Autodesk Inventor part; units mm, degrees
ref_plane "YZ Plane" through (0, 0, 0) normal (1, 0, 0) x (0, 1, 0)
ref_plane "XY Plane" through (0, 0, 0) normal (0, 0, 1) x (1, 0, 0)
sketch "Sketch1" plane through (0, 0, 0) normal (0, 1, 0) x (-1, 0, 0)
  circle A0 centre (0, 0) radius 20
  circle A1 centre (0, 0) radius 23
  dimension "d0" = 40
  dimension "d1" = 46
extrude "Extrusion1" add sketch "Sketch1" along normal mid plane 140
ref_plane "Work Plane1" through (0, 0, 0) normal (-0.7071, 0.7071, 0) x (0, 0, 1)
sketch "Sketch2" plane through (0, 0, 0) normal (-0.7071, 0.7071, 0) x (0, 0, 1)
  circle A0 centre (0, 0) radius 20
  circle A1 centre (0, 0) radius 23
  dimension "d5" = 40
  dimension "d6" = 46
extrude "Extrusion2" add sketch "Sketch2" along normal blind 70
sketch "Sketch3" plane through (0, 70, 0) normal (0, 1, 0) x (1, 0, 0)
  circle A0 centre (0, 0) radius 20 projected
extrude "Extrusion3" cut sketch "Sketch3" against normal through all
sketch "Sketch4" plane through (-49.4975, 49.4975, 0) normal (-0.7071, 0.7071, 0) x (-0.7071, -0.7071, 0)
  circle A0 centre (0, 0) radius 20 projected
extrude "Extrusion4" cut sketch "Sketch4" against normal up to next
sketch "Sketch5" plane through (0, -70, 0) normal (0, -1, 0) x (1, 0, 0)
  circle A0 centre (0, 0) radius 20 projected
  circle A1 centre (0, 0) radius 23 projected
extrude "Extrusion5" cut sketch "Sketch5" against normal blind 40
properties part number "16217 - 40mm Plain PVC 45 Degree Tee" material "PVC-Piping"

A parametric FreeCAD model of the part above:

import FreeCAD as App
import Part
import Sketcher
from FreeCAD import Vector

doc = App.newDocument("Part")
body = doc.addObject("PartDesign::Body", "Body")

sketch1 = body.newObject("Sketcher::SketchObject", "Sketch")
sketch1.AttachmentSupport = (doc.getObject("XZ_Plane"), [""])
sketch1.MapMode = "FlatFace"
sketch1.addGeometry([
    Part.Circle(Vector(0, 0, 0), Vector(0, 0, 1), 23),
    Part.Circle(Vector(0, 0, 0), Vector(0, 0, 1), 20),
], False)
sketch1.addConstraint([
    Sketcher.Constraint("Coincident", 0, 3, -1, 1),
    Sketcher.Constraint("Coincident", 1, 3, -1, 1),
    Sketcher.Constraint("Diameter", 0, 46.0),
    Sketcher.Constraint("Diameter", 1, 40.0),
])
pad1 = body.newObject("PartDesign::Pad", "Pad")
pad1.Profile = sketch1
pad1.Length = 140
pad1.Midplane = True

sketch2 = body.newObject("Sketcher::SketchObject", "Sketch001")
sketch2.Placement = App.Placement(Vector(0, 0, 0), App.Rotation(Vector(0, 0, 1), Vector(0.707106781, 0.707106781, 0), Vector(-0.707106781, 0.707106781, 0), "ZXY"))
sketch2.addGeometry([
    Part.Circle(Vector(0, 0, 0), Vector(0, 0, 1), 23),
    Part.Circle(Vector(0, 0, 0), Vector(0, 0, 1), 20),
], False)
sketch2.addConstraint([
    Sketcher.Constraint("Coincident", 0, 3, -1, 1),
    Sketcher.Constraint("Coincident", 1, 3, -1, 1),
    Sketcher.Constraint("Diameter", 0, 46.0),
    Sketcher.Constraint("Diameter", 1, 40.0),
])
pad2 = body.newObject("PartDesign::Pad", "Pad001")
pad2.Profile = sketch2
pad2.Length = 70

sketch3 = body.newObject("Sketcher::SketchObject", "Sketch002")
sketch3.AttachmentSupport = (doc.getObject("XZ_Plane"), [""])
sketch3.MapMode = "FlatFace"
sketch3.AttachmentOffset = App.Placement(Vector(0, 0, -70), App.Rotation())
sketch3.addGeometry(Part.Circle(Vector(0, 0, 0), Vector(0, 0, 1), 20), False)
sketch3.addConstraint([
    Sketcher.Constraint("Coincident", 0, 3, -1, 1),
    Sketcher.Constraint("Diameter", 0, 40.0),
])
pocket1 = body.newObject("PartDesign::Pocket", "Pocket")
pocket1.Profile = sketch3
pocket1.Type = "ThroughAll"
pocket1.Reversed = True

sketch4 = body.newObject("Sketcher::SketchObject", "Sketch003")
sketch4.Placement = App.Placement(Vector(-49.4975, 49.4975, 0), App.Rotation(Vector(-0.707106781, -0.707106781, 0), Vector(0, 0, 0.999999999), Vector(-0.707106781, 0.707106781, 0), "ZXY"))
sketch4.addGeometry(Part.Circle(Vector(0, 0, 0), Vector(0, 0, 1), 20), False)
sketch4.addConstraint([
    Sketcher.Constraint("Coincident", 0, 3, -1, 1),
    Sketcher.Constraint("Diameter", 0, 40.0),
])
pocket2 = body.newObject("PartDesign::Pocket", "Pocket001")
pocket2.Profile = sketch4
pocket2.Length = 70

sketch5 = body.newObject("Sketcher::SketchObject", "Sketch004")
sketch5.AttachmentSupport = (doc.getObject("XZ_Plane"), [""])
sketch5.MapMode = "FlatFace"
sketch5.AttachmentOffset = App.Placement(Vector(0, 0, 70), App.Rotation())
sketch5.addGeometry([
    Part.Circle(Vector(0, 0, 0), Vector(0, 0, 1), 23),
    Part.Circle(Vector(0, 0, 0), Vector(0, 0, 1), 20),
], False)
sketch5.addConstraint([
    Sketcher.Constraint("Coincident", 0, 3, -1, 1),
    Sketcher.Constraint("Coincident", 1, 3, -1, 1),
    Sketcher.Constraint("Diameter", 0, 46.0),
    Sketcher.Constraint("Diameter", 1, 40.0),
])
pocket3 = body.newObject("PartDesign::Pocket", "Pocket002")
pocket3.Profile = sketch5
pocket3.Length = 40

doc.recompute()
